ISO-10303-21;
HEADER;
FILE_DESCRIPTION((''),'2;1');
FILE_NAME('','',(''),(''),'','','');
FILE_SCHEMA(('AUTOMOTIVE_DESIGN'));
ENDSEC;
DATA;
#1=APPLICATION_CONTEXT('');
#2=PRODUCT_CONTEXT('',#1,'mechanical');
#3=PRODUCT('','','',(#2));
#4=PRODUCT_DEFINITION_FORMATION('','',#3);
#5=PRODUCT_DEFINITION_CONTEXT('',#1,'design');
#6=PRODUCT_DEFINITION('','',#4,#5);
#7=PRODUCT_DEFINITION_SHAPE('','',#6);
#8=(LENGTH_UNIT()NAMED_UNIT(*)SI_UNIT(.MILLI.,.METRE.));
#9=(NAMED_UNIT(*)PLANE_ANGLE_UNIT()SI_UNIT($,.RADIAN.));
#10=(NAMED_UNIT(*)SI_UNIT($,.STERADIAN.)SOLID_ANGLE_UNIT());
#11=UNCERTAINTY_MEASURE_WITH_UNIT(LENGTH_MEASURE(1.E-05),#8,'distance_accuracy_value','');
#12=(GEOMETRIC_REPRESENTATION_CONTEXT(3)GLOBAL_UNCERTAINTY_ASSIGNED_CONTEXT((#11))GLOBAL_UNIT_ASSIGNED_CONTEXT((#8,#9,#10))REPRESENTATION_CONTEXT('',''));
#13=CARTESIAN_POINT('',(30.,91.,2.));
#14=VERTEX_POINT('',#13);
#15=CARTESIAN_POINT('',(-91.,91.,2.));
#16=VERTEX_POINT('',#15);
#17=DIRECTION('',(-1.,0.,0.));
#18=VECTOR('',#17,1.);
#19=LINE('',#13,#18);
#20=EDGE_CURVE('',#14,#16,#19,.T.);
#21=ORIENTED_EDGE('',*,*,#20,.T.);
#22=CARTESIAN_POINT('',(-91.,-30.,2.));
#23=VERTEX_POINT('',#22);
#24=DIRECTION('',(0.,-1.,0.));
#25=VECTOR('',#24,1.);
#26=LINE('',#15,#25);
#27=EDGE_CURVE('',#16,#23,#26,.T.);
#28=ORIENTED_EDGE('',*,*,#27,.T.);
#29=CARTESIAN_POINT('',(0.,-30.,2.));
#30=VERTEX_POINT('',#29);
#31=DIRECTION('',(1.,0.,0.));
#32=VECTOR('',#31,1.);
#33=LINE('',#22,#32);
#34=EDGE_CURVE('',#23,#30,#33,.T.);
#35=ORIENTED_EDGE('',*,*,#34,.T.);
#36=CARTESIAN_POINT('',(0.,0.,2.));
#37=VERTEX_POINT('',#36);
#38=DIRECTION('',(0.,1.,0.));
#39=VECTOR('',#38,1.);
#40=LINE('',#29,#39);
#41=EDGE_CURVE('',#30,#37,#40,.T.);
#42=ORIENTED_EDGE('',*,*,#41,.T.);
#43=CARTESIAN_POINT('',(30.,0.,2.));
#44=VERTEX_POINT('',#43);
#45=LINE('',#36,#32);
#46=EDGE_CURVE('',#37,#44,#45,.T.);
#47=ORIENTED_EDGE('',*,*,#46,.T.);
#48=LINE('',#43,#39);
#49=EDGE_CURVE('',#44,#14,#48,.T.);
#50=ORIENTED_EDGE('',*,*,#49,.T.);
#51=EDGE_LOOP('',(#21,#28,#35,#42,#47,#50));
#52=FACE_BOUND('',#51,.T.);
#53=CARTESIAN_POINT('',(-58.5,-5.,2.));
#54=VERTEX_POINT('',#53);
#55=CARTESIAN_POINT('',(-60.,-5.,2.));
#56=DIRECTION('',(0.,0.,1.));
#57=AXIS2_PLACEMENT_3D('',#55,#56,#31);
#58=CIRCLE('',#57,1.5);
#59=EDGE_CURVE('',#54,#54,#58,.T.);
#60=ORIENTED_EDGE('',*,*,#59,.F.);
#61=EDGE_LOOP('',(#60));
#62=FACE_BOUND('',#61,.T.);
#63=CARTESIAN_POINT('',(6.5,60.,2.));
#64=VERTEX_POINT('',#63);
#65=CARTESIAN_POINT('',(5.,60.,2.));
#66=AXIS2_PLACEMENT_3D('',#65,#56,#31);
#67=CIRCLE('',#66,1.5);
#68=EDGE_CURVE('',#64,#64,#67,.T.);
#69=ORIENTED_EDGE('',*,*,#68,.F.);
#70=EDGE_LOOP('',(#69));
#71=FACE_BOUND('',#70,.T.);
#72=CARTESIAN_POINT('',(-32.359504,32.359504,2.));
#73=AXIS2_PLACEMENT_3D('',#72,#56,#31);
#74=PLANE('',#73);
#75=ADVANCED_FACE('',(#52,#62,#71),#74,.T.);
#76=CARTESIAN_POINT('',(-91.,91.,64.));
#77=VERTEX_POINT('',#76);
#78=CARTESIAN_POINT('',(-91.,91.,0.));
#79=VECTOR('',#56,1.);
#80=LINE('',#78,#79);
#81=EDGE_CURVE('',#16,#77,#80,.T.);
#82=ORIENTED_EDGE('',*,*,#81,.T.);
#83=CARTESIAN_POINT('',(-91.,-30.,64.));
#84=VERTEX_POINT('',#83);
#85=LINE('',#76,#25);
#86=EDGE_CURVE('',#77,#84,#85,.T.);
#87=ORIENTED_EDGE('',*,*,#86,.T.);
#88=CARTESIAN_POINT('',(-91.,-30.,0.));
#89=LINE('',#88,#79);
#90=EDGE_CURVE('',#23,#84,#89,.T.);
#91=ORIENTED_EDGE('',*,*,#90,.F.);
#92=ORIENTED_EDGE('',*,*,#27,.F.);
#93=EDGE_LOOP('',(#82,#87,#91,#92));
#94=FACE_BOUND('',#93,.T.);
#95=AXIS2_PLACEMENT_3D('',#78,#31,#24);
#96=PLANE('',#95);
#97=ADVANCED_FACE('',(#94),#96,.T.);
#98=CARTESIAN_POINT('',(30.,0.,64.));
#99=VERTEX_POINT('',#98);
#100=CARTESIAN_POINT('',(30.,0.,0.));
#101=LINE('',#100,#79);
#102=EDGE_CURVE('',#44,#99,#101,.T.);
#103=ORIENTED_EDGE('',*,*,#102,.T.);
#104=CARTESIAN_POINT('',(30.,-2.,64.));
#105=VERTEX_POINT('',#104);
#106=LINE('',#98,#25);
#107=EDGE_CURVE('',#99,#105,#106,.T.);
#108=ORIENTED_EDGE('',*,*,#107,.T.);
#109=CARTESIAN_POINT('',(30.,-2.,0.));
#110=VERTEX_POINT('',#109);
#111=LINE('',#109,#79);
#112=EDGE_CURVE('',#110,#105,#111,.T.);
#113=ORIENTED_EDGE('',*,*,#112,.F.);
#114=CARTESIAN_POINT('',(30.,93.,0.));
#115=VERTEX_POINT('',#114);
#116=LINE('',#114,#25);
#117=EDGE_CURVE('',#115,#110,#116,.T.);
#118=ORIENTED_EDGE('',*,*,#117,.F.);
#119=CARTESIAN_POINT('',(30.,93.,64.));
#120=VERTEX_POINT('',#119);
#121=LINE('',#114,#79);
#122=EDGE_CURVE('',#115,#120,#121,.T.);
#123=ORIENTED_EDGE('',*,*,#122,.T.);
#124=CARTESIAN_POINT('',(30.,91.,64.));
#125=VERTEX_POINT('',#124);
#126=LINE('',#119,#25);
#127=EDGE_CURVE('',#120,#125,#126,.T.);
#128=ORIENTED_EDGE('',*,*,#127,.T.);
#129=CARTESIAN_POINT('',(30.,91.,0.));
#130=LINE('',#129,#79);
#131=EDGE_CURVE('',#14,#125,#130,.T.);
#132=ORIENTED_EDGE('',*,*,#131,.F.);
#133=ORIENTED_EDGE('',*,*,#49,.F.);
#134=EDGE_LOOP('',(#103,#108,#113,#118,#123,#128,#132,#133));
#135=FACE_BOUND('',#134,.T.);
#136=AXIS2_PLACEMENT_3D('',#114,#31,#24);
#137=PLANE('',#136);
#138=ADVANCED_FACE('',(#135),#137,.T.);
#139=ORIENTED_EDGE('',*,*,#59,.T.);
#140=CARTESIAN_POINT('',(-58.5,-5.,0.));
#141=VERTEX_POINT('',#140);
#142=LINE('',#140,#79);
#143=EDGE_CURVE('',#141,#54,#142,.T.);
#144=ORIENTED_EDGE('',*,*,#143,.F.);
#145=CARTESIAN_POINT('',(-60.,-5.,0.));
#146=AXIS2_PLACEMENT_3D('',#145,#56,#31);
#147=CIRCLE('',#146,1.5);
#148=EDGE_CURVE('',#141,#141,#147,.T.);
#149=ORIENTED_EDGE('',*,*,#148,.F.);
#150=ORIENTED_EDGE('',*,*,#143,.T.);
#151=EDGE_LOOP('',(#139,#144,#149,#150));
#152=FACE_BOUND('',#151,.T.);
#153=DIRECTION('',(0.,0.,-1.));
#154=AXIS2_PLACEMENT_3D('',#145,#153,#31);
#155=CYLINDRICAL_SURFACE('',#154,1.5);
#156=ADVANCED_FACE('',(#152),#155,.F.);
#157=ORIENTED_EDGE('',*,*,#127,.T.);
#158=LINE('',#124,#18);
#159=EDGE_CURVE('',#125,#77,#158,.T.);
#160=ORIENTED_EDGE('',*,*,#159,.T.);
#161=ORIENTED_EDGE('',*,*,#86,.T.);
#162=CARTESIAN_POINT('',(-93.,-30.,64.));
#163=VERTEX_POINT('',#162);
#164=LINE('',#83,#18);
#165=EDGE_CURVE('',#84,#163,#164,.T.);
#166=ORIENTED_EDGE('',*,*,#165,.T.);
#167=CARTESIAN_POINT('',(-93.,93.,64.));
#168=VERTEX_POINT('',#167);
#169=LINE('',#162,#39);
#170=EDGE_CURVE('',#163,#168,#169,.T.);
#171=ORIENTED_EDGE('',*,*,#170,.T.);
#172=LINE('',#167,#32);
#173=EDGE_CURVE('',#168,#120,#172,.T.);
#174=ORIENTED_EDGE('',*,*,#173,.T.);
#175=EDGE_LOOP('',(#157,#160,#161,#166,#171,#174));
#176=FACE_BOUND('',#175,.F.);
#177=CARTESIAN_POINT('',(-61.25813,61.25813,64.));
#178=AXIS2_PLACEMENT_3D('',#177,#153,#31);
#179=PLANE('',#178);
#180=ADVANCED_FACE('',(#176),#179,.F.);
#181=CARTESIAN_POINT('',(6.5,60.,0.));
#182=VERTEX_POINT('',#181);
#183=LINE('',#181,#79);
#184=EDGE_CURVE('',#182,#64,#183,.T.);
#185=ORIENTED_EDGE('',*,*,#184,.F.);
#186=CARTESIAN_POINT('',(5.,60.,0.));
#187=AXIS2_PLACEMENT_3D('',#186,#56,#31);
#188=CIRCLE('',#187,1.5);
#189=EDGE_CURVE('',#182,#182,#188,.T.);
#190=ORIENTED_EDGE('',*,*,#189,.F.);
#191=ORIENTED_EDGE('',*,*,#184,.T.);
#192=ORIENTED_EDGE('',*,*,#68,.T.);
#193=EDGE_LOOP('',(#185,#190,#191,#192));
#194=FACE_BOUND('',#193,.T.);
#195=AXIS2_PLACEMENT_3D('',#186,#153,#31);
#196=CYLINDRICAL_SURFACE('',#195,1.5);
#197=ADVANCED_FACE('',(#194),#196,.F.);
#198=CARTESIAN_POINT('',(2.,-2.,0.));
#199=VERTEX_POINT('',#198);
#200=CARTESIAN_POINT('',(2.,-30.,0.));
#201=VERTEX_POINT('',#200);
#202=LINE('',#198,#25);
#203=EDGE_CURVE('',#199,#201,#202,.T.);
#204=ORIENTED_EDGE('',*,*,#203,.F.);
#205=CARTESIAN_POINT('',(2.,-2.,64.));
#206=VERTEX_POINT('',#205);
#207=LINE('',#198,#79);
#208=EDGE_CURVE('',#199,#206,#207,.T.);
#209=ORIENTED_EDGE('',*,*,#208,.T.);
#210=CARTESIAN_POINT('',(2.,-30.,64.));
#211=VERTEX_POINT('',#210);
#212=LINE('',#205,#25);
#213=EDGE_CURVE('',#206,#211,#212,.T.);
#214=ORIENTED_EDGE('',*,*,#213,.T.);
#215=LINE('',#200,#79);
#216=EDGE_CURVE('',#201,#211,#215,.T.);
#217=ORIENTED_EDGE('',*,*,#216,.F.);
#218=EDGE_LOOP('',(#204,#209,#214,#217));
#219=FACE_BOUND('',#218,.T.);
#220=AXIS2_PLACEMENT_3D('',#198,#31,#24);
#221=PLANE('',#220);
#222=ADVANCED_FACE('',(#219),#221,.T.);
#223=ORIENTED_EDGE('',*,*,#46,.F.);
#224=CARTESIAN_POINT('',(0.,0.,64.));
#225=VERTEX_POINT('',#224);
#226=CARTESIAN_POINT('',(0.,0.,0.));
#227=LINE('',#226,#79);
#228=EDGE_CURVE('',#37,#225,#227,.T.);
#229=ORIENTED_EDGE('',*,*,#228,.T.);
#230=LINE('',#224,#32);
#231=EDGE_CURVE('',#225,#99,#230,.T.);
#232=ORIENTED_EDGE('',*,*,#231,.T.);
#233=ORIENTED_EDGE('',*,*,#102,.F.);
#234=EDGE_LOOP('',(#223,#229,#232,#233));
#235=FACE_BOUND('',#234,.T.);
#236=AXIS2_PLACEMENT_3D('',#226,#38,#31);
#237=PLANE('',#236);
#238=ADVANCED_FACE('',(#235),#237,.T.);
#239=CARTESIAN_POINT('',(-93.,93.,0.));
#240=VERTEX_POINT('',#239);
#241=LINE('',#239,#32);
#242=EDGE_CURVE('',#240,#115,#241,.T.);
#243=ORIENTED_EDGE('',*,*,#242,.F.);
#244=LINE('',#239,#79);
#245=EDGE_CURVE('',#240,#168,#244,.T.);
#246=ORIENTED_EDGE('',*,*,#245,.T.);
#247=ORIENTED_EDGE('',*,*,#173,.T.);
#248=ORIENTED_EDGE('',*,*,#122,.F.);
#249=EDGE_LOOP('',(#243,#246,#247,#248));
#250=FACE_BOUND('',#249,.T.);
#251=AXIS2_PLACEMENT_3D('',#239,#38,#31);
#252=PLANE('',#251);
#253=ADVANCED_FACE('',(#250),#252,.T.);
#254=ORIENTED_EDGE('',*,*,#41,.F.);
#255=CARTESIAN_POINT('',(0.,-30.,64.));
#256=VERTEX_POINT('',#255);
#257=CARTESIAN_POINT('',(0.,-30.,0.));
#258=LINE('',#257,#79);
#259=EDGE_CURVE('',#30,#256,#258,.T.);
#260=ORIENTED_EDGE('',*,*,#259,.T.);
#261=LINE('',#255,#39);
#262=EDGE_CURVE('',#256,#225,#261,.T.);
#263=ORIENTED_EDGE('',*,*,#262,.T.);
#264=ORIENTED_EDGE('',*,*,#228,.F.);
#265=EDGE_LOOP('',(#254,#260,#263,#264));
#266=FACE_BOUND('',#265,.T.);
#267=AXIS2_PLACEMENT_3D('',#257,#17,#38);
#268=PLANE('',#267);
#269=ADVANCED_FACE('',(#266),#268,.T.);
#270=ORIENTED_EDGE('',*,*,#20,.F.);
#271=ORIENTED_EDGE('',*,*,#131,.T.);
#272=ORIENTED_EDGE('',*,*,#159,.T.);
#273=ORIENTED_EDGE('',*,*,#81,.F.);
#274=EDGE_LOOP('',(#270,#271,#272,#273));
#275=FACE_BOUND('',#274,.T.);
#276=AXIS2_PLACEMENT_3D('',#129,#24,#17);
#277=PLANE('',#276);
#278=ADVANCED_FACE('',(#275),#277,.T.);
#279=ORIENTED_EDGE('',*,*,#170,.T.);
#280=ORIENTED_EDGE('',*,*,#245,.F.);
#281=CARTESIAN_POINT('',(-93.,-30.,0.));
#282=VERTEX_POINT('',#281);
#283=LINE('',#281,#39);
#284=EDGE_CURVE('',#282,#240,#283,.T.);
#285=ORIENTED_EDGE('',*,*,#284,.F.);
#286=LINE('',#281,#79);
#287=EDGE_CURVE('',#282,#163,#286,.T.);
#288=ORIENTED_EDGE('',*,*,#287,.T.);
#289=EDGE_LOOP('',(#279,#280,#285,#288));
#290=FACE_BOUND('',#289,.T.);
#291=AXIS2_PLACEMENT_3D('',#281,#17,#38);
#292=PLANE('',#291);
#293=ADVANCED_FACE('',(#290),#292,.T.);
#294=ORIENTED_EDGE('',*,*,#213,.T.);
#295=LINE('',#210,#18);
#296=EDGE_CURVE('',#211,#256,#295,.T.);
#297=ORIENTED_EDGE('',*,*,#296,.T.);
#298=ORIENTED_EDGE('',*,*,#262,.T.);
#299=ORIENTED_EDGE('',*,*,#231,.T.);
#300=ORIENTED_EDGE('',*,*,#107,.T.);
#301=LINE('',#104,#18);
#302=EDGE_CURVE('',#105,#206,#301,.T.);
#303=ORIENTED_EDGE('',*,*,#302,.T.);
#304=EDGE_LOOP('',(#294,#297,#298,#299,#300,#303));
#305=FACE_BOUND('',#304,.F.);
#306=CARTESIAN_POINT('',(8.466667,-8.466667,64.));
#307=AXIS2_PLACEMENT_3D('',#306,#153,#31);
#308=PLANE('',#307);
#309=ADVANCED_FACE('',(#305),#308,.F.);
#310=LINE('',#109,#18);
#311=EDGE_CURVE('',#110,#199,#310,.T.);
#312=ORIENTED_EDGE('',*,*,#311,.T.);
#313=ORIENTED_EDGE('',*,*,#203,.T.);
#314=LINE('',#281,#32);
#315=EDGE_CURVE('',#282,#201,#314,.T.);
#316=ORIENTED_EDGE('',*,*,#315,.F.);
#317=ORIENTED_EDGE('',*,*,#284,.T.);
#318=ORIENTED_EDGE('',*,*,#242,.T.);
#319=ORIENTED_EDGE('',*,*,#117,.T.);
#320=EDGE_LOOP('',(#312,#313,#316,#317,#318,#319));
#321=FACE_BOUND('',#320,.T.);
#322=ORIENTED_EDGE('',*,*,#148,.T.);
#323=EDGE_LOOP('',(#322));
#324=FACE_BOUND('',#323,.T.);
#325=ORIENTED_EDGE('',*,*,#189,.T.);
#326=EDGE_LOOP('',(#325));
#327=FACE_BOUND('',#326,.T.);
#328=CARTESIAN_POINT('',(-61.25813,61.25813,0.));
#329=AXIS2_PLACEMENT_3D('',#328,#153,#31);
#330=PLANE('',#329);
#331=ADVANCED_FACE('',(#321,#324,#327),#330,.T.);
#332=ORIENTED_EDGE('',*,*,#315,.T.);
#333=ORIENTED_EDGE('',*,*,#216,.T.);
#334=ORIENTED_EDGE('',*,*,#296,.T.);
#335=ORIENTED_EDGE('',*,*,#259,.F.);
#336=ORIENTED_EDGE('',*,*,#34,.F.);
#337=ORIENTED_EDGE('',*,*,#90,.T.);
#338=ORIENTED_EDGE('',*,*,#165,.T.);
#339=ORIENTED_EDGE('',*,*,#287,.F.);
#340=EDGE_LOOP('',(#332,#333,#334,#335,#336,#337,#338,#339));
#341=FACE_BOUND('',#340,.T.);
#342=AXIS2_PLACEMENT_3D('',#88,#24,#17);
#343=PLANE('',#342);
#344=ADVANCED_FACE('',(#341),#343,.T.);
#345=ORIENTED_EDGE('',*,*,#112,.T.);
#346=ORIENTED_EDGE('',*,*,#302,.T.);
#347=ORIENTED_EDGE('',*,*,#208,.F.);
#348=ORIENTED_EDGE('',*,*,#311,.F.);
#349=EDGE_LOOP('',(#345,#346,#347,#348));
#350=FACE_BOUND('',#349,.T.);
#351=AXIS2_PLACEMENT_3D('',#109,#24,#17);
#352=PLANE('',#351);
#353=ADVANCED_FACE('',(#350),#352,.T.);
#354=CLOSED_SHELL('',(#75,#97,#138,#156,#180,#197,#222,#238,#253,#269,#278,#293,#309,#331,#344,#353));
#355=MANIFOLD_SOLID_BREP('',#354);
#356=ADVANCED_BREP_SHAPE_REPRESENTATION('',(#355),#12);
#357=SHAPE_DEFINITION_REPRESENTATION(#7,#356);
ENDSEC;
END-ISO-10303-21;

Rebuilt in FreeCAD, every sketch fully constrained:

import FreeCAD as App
import Part
import Sketcher

V = App.Vector
Q = App.Units.Quantity

doc = App.newDocument("Part")
body = doc.addObject("PartDesign::Body", "Body")

# Sketch on XY plane
sketch1 = body.newObject("Sketcher::SketchObject", "Sketch")
sketch1.AttachmentSupport = (doc.getObject("XY_Plane"), [""])
sketch1.MapMode = "FlatFace"
sketch1.addGeometry(Part.LineSegment(V(0, 0, 0), V(30, 0, 0)), False)
sketch1.addGeometry(Part.LineSegment(V(30, 0, 0), V(30, 91, 0)), False)
sketch1.addGeometry(Part.LineSegment(V(30, 91, 0), V(-91, 91, 0)), False)
sketch1.addGeometry(Part.LineSegment(V(-91, 91, 0), V(-91, -30, 0)), False)
sketch1.addGeometry(Part.LineSegment(V(-91, -30, 0), V(0, -30, 0)), False)
sketch1.addGeometry(Part.LineSegment(V(0, -30, 0), V(0, 0, 0)), False)
sketch1.addGeometry(Part.Circle(V(-60, -5, 0), V(0, 0, 1), 1.5), False)
sketch1.addGeometry(Part.Circle(V(5, 60, 0), V(0, 0, 1), 1.5), False)
sketch1.addConstraint(Sketcher.Constraint("Coincident", 0, 2, 1, 1))
sketch1.addConstraint(Sketcher.Constraint("Coincident", 1, 2, 2, 1))
sketch1.addConstraint(Sketcher.Constraint("Coincident", 2, 2, 3, 1))
sketch1.addConstraint(Sketcher.Constraint("Coincident", 3, 2, 4, 1))
sketch1.addConstraint(Sketcher.Constraint("Coincident", 4, 2, 5, 1))
sketch1.addConstraint(Sketcher.Constraint("Coincident", 5, 2, 0, 1))
sketch1.addConstraint(Sketcher.Constraint("Horizontal", 0))
sketch1.addConstraint(Sketcher.Constraint("Vertical", 1))
sketch1.addConstraint(Sketcher.Constraint("Horizontal", 2))
sketch1.addConstraint(Sketcher.Constraint("Vertical", 3))
sketch1.addConstraint(Sketcher.Constraint("Horizontal", 4))
sketch1.addConstraint(Sketcher.Constraint("Vertical", 5))
sketch1.addConstraint(Sketcher.Constraint("Coincident", 5, 2, -1, 1))
sketch1.addConstraint(Sketcher.Constraint("Equal", 6, 7))
sketch1.addConstraint(Sketcher.Constraint("Equal", 4, 1))
sketch1.addConstraint(Sketcher.Constraint("Equal", 2, 3))
sketch1.addConstraint(Sketcher.Constraint("Diameter", 6, Q("3 mm")))
sketch1.addConstraint(Sketcher.Constraint("DistanceX", 0, 1, 0, 2, Q("30 mm")))
sketch1.addConstraint(Sketcher.Constraint("DistanceX", 2, 2, 2, 1, Q("121 mm")))
sketch1.addConstraint(Sketcher.Constraint("DistanceX", 6, 3, -1, 1, Q("60 mm")))
sketch1.addConstraint(Sketcher.Constraint("DistanceY", 6, 3, -1, 1, Q("5 mm")))
sketch1.addConstraint(Sketcher.Constraint("DistanceX", -1, 1, 7, 3, Q("5 mm")))
sketch1.addConstraint(Sketcher.Constraint("DistanceY", -1, 1, 7, 3, Q("60 mm")))
pad1 = body.newObject("PartDesign::Pad", "Pad")
pad1.Profile = sketch1
pad1.Length = 2

# Sketch on XY plane
sketch2 = body.newObject("Sketcher::SketchObject", "Sketch001")
sketch2.AttachmentSupport = (doc.getObject("XY_Plane"), [""])
sketch2.MapMode = "FlatFace"
sketch2.addGeometry(Part.LineSegment(V(-91, -30, 0), V(-93, -30, 0)), False)
sketch2.addGeometry(Part.LineSegment(V(-93, -30, 0), V(-93, 93, 0)), False)
sketch2.addGeometry(Part.LineSegment(V(-93, 93, 0), V(30, 93, 0)), False)
sketch2.addGeometry(Part.LineSegment(V(30, 93, 0), V(30, 91, 0)), False)
sketch2.addGeometry(Part.LineSegment(V(30, 91, 0), V(-91, 91, 0)), False)
sketch2.addGeometry(Part.LineSegment(V(-91, 91, 0), V(-91, -30, 0)), False)
sketch2.addGeometry(Part.LineSegment(V(0, -30, 0), V(0, 0, 0)), False)
sketch2.addGeometry(Part.LineSegment(V(0, 0, 0), V(30, 0, 0)), False)
sketch2.addGeometry(Part.LineSegment(V(30, 0, 0), V(30, -2, 0)), False)
sketch2.addGeometry(Part.LineSegment(V(30, -2, 0), V(2, -2, 0)), False)
sketch2.addGeometry(Part.LineSegment(V(2, -2, 0), V(2, -30, 0)), False)
sketch2.addGeometry(Part.LineSegment(V(2, -30, 0), V(0, -30, 0)), False)
sketch2.addConstraint(Sketcher.Constraint("Coincident", 0, 2, 1, 1))
sketch2.addConstraint(Sketcher.Constraint("Coincident", 1, 2, 2, 1))
sketch2.addConstraint(Sketcher.Constraint("Coincident", 2, 2, 3, 1))
sketch2.addConstraint(Sketcher.Constraint("Coincident", 3, 2, 4, 1))
sketch2.addConstraint(Sketcher.Constraint("Coincident", 4, 2, 5, 1))
sketch2.addConstraint(Sketcher.Constraint("Coincident", 5, 2, 0, 1))
sketch2.addConstraint(Sketcher.Constraint("Coincident", 6, 2, 7, 1))
sketch2.addConstraint(Sketcher.Constraint("Coincident", 7, 2, 8, 1))
sketch2.addConstraint(Sketcher.Constraint("Coincident", 8, 2, 9, 1))
sketch2.addConstraint(Sketcher.Constraint("Coincident", 9, 2, 10, 1))
sketch2.addConstraint(Sketcher.Constraint("Coincident", 10, 2, 11, 1))
sketch2.addConstraint(Sketcher.Constraint("Coincident", 11, 2, 6, 1))
sketch2.addConstraint(Sketcher.Constraint("Horizontal", 0))
sketch2.addConstraint(Sketcher.Constraint("Vertical", 1))
sketch2.addConstraint(Sketcher.Constraint("Horizontal", 2))
sketch2.addConstraint(Sketcher.Constraint("Vertical", 3))
sketch2.addConstraint(Sketcher.Constraint("Horizontal", 4))
sketch2.addConstraint(Sketcher.Constraint("Vertical", 5))
sketch2.addConstraint(Sketcher.Constraint("Vertical", 6))
sketch2.addConstraint(Sketcher.Constraint("Horizontal", 7))
sketch2.addConstraint(Sketcher.Constraint("Vertical", 8))
sketch2.addConstraint(Sketcher.Constraint("Horizontal", 9))
sketch2.addConstraint(Sketcher.Constraint("Vertical", 10))
sketch2.addConstraint(Sketcher.Constraint("Horizontal", 11))
sketch2.addConstraint(Sketcher.Constraint("Coincident", 6, 2, -1, 1))
sketch2.addConstraint(Sketcher.Constraint("Horizontal", 5, 2, 10, 2))
sketch2.addConstraint(Sketcher.Constraint("Vertical", 3, 2, 7, 2))
sketch2.addConstraint(Sketcher.Constraint("Equal", 0, 11))
sketch2.addConstraint(Sketcher.Constraint("Equal", 2, 1))
sketch2.addConstraint(Sketcher.Constraint("Equal", 11, 3))
sketch2.addConstraint(Sketcher.Constraint("Equal", 7, 6))
sketch2.addConstraint(Sketcher.Constraint("Equal", 3, 8))
sketch2.addConstraint(Sketcher.Constraint("DistanceX", 0, 2, 0, 1, Q("2 mm")))
sketch2.addConstraint(Sketcher.Constraint("DistanceX", 2, 1, 2, 2, Q("123 mm")))
sketch2.addConstraint(Sketcher.Constraint("DistanceX", 7, 1, 7, 2, Q("30 mm")))
pad2 = body.newObject("PartDesign::Pad", "Pad001")
pad2.Profile = sketch2
pad2.Length = 64

doc.recompute()
